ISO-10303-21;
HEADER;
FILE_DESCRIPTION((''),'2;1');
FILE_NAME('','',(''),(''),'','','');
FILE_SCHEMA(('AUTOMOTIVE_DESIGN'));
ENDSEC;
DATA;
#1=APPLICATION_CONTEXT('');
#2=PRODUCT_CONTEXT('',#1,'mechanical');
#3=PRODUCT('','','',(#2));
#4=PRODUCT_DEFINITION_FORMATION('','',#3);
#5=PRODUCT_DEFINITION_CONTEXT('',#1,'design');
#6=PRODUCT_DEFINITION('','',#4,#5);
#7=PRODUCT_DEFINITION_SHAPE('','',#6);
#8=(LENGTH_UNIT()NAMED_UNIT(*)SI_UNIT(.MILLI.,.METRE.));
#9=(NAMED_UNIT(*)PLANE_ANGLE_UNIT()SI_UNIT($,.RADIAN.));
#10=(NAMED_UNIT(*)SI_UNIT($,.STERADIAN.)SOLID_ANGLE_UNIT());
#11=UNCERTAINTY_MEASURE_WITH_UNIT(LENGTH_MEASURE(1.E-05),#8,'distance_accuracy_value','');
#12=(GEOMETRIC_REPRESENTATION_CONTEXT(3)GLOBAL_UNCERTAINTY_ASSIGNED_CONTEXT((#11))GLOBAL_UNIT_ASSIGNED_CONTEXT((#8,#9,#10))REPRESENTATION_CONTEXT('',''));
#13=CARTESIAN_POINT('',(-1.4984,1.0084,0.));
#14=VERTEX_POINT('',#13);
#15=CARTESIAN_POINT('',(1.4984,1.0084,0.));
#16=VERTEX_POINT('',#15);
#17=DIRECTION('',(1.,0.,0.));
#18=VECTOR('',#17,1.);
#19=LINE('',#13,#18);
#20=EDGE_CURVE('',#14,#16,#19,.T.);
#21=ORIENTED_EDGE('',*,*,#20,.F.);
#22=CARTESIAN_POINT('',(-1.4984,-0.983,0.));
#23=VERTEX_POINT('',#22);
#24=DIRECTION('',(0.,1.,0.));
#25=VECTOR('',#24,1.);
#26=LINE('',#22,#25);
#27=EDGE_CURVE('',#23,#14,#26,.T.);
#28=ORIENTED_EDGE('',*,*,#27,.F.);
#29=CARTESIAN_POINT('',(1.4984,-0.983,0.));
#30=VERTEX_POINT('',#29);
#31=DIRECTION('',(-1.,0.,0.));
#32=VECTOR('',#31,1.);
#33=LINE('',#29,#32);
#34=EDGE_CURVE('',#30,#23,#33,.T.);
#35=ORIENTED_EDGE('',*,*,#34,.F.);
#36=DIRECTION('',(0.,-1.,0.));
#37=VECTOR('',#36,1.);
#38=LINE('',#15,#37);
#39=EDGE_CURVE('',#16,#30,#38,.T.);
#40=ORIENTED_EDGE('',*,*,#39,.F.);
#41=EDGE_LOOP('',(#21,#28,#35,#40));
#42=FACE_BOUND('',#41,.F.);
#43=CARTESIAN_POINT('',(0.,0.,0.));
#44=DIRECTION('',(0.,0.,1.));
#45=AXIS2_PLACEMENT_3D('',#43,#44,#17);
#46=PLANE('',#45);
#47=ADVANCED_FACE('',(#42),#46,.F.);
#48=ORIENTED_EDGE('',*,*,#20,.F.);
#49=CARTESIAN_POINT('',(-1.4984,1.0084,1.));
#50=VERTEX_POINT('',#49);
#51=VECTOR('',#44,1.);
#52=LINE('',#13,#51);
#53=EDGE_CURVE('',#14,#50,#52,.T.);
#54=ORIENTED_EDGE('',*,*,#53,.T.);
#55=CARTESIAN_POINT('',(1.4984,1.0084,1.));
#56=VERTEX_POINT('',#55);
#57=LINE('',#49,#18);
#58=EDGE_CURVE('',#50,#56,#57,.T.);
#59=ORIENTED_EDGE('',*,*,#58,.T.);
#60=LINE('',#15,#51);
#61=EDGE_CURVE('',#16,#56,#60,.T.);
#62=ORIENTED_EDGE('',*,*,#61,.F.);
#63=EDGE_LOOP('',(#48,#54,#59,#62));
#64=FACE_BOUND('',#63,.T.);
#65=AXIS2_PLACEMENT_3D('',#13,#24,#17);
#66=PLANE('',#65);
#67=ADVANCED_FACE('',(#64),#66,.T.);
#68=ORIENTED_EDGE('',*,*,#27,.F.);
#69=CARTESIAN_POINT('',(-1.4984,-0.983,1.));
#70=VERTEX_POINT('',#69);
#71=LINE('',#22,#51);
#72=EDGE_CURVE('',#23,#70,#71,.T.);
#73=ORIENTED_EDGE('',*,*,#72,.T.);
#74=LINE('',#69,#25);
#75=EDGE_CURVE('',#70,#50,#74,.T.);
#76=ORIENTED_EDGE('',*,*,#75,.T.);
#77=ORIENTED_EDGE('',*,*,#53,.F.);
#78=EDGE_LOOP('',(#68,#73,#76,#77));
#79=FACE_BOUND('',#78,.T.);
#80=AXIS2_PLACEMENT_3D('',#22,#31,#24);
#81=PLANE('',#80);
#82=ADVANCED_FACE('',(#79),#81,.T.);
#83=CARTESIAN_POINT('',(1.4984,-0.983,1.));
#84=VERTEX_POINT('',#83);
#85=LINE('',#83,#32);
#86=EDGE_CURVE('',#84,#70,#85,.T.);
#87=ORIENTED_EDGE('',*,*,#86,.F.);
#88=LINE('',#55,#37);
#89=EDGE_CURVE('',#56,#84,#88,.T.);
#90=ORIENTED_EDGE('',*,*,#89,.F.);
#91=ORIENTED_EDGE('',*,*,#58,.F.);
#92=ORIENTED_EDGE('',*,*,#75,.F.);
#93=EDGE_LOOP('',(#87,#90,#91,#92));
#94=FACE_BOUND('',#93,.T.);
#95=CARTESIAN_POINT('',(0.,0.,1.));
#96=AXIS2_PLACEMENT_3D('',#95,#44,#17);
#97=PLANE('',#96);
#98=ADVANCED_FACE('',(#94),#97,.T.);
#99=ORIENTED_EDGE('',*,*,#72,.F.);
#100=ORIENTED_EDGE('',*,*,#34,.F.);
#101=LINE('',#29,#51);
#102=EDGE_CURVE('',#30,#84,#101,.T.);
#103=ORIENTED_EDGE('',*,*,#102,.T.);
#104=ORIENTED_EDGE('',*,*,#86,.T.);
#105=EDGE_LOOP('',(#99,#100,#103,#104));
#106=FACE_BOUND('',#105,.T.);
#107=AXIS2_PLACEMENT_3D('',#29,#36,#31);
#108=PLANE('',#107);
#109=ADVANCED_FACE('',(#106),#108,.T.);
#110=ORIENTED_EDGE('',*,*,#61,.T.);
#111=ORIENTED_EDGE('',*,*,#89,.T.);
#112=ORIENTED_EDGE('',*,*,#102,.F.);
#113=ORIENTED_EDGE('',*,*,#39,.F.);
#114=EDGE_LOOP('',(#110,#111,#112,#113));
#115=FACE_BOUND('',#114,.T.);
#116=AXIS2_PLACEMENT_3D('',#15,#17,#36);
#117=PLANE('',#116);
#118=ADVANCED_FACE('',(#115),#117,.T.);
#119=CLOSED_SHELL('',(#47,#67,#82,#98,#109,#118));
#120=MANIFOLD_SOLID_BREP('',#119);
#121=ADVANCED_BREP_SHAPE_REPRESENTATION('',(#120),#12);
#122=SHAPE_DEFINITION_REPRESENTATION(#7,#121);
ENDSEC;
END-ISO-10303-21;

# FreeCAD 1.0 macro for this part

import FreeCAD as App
import Part
import Sketcher

doc = App.newDocument("Part")
body = doc.addObject("PartDesign::Body", "Body")

sketch1 = doc.addObject("Sketcher::SketchObject", "Sketch")
body.addObject(sketch1)
sketch1.AttachmentSupport = (doc.XY_Plane, [""])
sketch1.MapMode = "FlatFace"
sketch1.addGeometry(Part.LineSegment(App.Vector(1.4984, 1.0084, 0), App.Vector(-1.4984, 1.0084, 0)), False)
sketch1.addGeometry(Part.LineSegment(App.Vector(-1.4984, 1.0084, 0), App.Vector(-1.4984, -0.983, 0)), False)
sketch1.addGeometry(Part.LineSegment(App.Vector(-1.4984, -0.983, 0), App.Vector(1.4984, -0.983, 0)), False)
sketch1.addGeometry(Part.LineSegment(App.Vector(1.4984, -0.983, 0), App.Vector(1.4984, 1.0084, 0)), False)
sketch1.addConstraint(Sketcher.Constraint("Coincident", 0, 2, 1, 1))
sketch1.addConstraint(Sketcher.Constraint("Coincident", 1, 2, 2, 1))
sketch1.addConstraint(Sketcher.Constraint("Coincident", 2, 2, 3, 1))
sketch1.addConstraint(Sketcher.Constraint("Coincident", 3, 2, 0, 1))
sketch1.addConstraint(Sketcher.Constraint("Horizontal", 0))
sketch1.addConstraint(Sketcher.Constraint("Vertical", 1))
sketch1.addConstraint(Sketcher.Constraint("Horizontal", 2))
sketch1.addConstraint(Sketcher.Constraint("Vertical", 3))
sketch1.addConstraint(Sketcher.Constraint("DistanceX", 0, 2, 0, 1, 2.9968))
sketch1.addConstraint(Sketcher.Constraint("DistanceY", 1, 2, 1, 1, 1.9914))
sketch1.addConstraint(Sketcher.Constraint("DistanceY", 1, 2, -1, 1, 0.983))
sketch1.addConstraint(Sketcher.Constraint("DistanceX", 0, 2, -1, 1, 1.4984))
pad1 = doc.addObject("PartDesign::Pad", "Pad")
body.addObject(pad1)
pad1.Profile = sketch1
pad1.Length = 1

doc.recompute()
